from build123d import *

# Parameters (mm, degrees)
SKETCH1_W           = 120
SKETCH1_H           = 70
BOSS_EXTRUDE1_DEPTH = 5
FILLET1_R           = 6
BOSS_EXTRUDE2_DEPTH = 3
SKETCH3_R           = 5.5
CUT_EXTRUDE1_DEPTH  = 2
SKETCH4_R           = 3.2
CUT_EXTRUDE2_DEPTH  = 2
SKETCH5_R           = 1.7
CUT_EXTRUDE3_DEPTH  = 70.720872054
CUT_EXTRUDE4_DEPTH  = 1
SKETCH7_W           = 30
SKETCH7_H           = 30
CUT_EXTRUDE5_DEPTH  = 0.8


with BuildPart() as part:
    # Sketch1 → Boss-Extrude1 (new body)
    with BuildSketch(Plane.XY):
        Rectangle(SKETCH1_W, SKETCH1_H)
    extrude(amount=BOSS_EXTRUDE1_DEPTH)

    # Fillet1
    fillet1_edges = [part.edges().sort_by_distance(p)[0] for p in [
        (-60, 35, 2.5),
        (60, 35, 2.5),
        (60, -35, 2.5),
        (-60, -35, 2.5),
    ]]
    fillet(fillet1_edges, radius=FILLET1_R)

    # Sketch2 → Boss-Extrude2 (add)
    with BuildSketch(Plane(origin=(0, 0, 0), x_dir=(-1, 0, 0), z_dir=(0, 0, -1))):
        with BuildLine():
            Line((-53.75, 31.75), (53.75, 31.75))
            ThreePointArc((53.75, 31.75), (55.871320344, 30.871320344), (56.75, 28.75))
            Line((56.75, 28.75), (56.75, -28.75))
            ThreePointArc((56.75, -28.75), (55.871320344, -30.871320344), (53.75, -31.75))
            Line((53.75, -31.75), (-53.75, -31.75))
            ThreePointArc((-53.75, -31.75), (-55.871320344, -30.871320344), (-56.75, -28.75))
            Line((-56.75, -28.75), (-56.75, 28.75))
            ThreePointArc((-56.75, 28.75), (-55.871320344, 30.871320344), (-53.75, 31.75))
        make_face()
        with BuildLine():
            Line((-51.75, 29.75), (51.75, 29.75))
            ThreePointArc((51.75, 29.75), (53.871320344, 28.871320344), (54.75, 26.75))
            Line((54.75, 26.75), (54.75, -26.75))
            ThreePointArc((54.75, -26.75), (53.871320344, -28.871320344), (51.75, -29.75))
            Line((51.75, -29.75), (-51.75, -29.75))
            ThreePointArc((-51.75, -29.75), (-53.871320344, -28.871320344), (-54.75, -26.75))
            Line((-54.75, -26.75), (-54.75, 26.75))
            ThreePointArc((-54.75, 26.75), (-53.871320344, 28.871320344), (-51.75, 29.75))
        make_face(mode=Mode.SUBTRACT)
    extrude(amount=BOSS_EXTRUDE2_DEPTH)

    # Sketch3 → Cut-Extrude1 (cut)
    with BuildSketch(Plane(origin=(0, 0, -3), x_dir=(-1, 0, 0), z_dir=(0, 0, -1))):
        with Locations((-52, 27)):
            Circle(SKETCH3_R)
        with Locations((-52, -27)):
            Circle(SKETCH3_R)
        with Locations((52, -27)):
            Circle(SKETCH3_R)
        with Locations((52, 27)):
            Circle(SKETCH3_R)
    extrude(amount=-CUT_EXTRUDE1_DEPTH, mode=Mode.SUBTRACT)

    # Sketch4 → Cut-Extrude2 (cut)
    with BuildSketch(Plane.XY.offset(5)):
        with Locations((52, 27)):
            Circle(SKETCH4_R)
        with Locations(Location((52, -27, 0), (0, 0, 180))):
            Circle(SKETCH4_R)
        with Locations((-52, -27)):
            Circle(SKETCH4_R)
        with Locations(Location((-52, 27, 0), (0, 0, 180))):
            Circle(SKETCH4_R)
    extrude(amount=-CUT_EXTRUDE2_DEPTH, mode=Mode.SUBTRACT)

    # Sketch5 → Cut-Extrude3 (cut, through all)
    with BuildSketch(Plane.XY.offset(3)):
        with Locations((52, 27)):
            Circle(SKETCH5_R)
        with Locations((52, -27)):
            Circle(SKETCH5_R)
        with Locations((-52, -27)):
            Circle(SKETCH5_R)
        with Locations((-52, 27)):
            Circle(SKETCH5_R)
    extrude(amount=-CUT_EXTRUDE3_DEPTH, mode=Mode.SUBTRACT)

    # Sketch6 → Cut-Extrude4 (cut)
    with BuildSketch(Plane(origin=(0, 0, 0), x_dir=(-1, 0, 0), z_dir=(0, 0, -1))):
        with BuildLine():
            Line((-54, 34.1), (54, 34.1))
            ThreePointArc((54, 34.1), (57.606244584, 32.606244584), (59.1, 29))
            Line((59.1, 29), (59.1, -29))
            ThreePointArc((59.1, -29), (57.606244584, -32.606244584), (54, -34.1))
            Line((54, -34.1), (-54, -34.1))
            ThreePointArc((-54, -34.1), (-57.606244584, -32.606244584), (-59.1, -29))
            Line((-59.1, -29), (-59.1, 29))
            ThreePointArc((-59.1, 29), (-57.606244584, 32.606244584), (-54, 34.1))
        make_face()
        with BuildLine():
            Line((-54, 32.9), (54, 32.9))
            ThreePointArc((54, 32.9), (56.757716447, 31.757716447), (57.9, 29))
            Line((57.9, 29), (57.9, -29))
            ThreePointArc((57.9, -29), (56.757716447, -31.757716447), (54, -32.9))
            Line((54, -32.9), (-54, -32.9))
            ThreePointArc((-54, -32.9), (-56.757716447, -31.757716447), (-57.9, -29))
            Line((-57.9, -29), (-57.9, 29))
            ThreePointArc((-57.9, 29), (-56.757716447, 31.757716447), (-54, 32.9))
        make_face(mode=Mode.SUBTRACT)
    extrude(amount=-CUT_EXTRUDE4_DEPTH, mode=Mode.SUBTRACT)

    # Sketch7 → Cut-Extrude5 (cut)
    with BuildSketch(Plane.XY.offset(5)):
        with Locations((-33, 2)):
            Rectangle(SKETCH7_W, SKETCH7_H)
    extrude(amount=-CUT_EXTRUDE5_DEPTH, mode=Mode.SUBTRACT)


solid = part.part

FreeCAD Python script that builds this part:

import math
import FreeCAD as App
import Part
import Sketcher

V = App.Vector


def edges_at(feature, points):
    """Names of the edges that pass closest to the given points."""
    edges = feature.Shape.Edges
    near = lambda p: min(range(len(edges)), key=lambda i: edges[i].distToShape(Part.Vertex(*p))[0])
    return sorted({f"Edge{near(p) + 1}" for p in points})

doc = App.newDocument("Part")
body = doc.addObject("PartDesign::Body", "Body")

# Sketch on XY plane
sketch1 = body.newObject("Sketcher::SketchObject", "Sketch")
sketch1.AttachmentSupport = (doc.getObject("XY_Plane"), [""])
sketch1.MapMode = "FlatFace"
sketch1.addGeometry([
    Part.LineSegment(V(-60, 35, 0), V(-60, -35, 0)),
    Part.LineSegment(V(-60, -35, 0), V(60, -35, 0)),
    Part.LineSegment(V(60, -35, 0), V(60, 35, 0)),
    Part.LineSegment(V(60, 35, 0), V(-60, 35, 0)),
], False)
sketch1.addConstraint([
    Sketcher.Constraint("Coincident", 0, 2, 1, 1),
    Sketcher.Constraint("Coincident", 1, 2, 2, 1),
    Sketcher.Constraint("Coincident", 2, 2, 3, 1),
    Sketcher.Constraint("Coincident", 3, 2, 0, 1),
    Sketcher.Constraint("Vertical", 0),
    Sketcher.Constraint("Horizontal", 1),
    Sketcher.Constraint("Vertical", 2),
    Sketcher.Constraint("Horizontal", 3),
    Sketcher.Constraint("Symmetric", 0, 2, 2, 2, -1, 1),
    Sketcher.Constraint("DistanceX", 1, 1, 1, 2, 120.0),
    Sketcher.Constraint("DistanceY", 0, 2, 0, 1, 70.0),
])
pad1 = body.newObject("PartDesign::Pad", "Pad")
pad1.Profile = sketch1
pad1.Length = 5
doc.recompute()

fillet = body.newObject("PartDesign::Fillet", "Fillet")
fillet.Base = (pad1, edges_at(pad1, [
    (-60, 35, 2.5),
    (60, 35, 2.5),
    (60, -35, 2.5),
    (-60, -35, 2.5),
]))
fillet.Radius = 6

# Sketch on XY plane
sketch2 = body.newObject("Sketcher::SketchObject", "Sketch001")
sketch2.AttachmentSupport = (doc.getObject("XY_Plane"), [""])
sketch2.MapMode = "FlatFace"
sketch2.addGeometry([
    Part.LineSegment(V(-53.75, 31.75, 0), V(53.75, 31.75, 0)),  # 0
    Part.ArcOfCircle(Part.Circle(V(53.75, 28.75, 0), V(0, 0, 1), 3), math.radians(0), math.radians(90)),  # 1
    Part.LineSegment(V(56.75, 28.75, 0), V(56.75, -28.75, 0)),  # 2
    Part.ArcOfCircle(Part.Circle(V(53.75, -28.75, 0), V(0, 0, 1), 3), math.radians(-90), math.radians(0)),  # 3
    Part.LineSegment(V(53.75, -31.75, 0), V(-53.75, -31.75, 0)),  # 4
    Part.ArcOfCircle(Part.Circle(V(-53.75, -28.75, 0), V(0, 0, 1), 3), math.radians(180), math.radians(270)),  # 5
    Part.LineSegment(V(-56.75, -28.75, 0), V(-56.75, 28.75, 0)),  # 6
    Part.ArcOfCircle(Part.Circle(V(-53.75, 28.75, 0), V(0, 0, 1), 3), math.radians(90), math.radians(180)),  # 7
    Part.LineSegment(V(51.75, 29.75, 0), V(-51.75, 29.75, 0)),  # 8
    Part.ArcOfCircle(Part.Circle(V(-51.75, 26.75, 0), V(0, 0, 1), 3), math.radians(90), math.radians(180)),  # 9
    Part.LineSegment(V(-54.75, 26.75, 0), V(-54.75, -26.75, 0)),  # 10
    Part.ArcOfCircle(Part.Circle(V(-51.75, -26.75, 0), V(0, 0, 1), 3), math.radians(180), math.radians(270)),  # 11
    Part.LineSegment(V(-51.75, -29.75, 0), V(51.75, -29.75, 0)),  # 12
    Part.ArcOfCircle(Part.Circle(V(51.75, -26.75, 0), V(0, 0, 1), 3), math.radians(-90), math.radians(0)),  # 13
    Part.LineSegment(V(54.75, -26.75, 0), V(54.75, 26.75, 0)),  # 14
    Part.ArcOfCircle(Part.Circle(V(51.75, 26.75, 0), V(0, 0, 1), 3), math.radians(0), math.radians(90)),  # 15
], False)
sketch2.addConstraint([
    Sketcher.Constraint("Tangent", 0, 2, 1, 2),
    Sketcher.Constraint("Tangent", 1, 1, 2, 1),
    Sketcher.Constraint("Tangent", 2, 2, 3, 2),
    Sketcher.Constraint("Tangent", 3, 1, 4, 1),
    Sketcher.Constraint("Tangent", 4, 2, 5, 2),
    Sketcher.Constraint("Tangent", 5, 1, 6, 1),
    Sketcher.Constraint("Tangent", 6, 2, 7, 2),
    Sketcher.Constraint("Tangent", 7, 1, 0, 1),
    Sketcher.Constraint("Tangent", 8, 2, 9, 1),
    Sketcher.Constraint("Tangent", 9, 2, 10, 1),
    Sketcher.Constraint("Tangent", 10, 2, 11, 1),
    Sketcher.Constraint("Tangent", 11, 2, 12, 1),
    Sketcher.Constraint("Tangent", 12, 2, 13, 1),
    Sketcher.Constraint("Tangent", 13, 2, 14, 1),
    Sketcher.Constraint("Tangent", 14, 2, 15, 1),
    Sketcher.Constraint("Tangent", 15, 2, 8, 1),
    Sketcher.Constraint("Horizontal", 0),
    Sketcher.Constraint("Vertical", 2),
    Sketcher.Constraint("Horizontal", 4),
    Sketcher.Constraint("Vertical", 6),
    Sketcher.Constraint("Horizontal", 8),
    Sketcher.Constraint("Vertical", 10),
    Sketcher.Constraint("Horizontal", 12),
    Sketcher.Constraint("Vertical", 14),
    Sketcher.Constraint("Equal", 1, 3),
    Sketcher.Constraint("Equal", 3, 5),
    Sketcher.Constraint("Equal", 5, 7),
    Sketcher.Constraint("Equal", 7, 9),
    Sketcher.Constraint("Equal", 9, 11),
    Sketcher.Constraint("Equal", 11, 13),
    Sketcher.Constraint("Equal", 13, 15),
    Sketcher.Constraint("Symmetric", 1, 3, 5, 3, -1, 1),
    Sketcher.Constraint("Symmetric", 9, 3, 13, 3, -1, 1),
    Sketcher.Constraint("Radius", 1, 3.0),
    Sketcher.Constraint("DistanceX", 0, 1, 0, 2, 107.5),
    Sketcher.Constraint("DistanceX", 8, 2, 8, 1, 103.5),
    Sketcher.Constraint("DistanceY", 2, 2, 2, 1, 57.5),
    Sketcher.Constraint("DistanceY", 10, 2, 10, 1, 53.5),
])
pad2 = body.newObject("PartDesign::Pad", "Pad001")
pad2.Profile = sketch2
pad2.Length = 3
pad2.Reversed = True

# Sketch on XY plane
sketch3 = body.newObject("Sketcher::SketchObject", "Sketch002")
sketch3.AttachmentSupport = (doc.getObject("XY_Plane"), [""])
sketch3.MapMode = "FlatFace"
sketch3.AttachmentOffset = App.Placement(V(0, 0, -3), App.Rotation())
sketch3.addGeometry([
    Part.Circle(V(52, 27, 0), V(0, 0, 1), 5.5),
    Part.Circle(V(52, -27, 0), V(0, 0, 1), 5.5),
    Part.Circle(V(-52, -27, 0), V(0, 0, 1), 5.5),
    Part.Circle(V(-52, 27, 0), V(0, 0, 1), 5.5),
], False)
sketch3.addConstraint([
    Sketcher.Constraint("Equal", 0, 1),
    Sketcher.Constraint("Equal", 1, 2),
    Sketcher.Constraint("Equal", 2, 3),
    Sketcher.Constraint("Symmetric", 0, 3, 2, 3, -1, 1),
    Sketcher.Constraint("Symmetric", 1, 3, 3, 3, -1, 1),
    Sketcher.Constraint("Symmetric", 1, 3, 2, 3, -2),
    Sketcher.Constraint("Diameter", 0, 11.0),
    Sketcher.Constraint("DistanceX", -1, 1, 0, 3, 52.0),
    Sketcher.Constraint("DistanceY", -1, 1, 0, 3, 27.0),
])
pocket1 = body.newObject("PartDesign::Pocket", "Pocket")
pocket1.Profile = sketch3
pocket1.Length = 2
pocket1.Reversed = True

# Sketch on XY plane
sketch4 = body.newObject("Sketcher::SketchObject", "Sketch003")
sketch4.AttachmentSupport = (doc.getObject("XY_Plane"), [""])
sketch4.MapMode = "FlatFace"
sketch4.AttachmentOffset = App.Placement(V(0, 0, 5), App.Rotation())
sketch4.addGeometry([
    Part.Circle(V(52, 27, 0), V(0, 0, 1), 3.2),
    Part.Circle(V(52, -27, 0), V(0, 0, 1), 3.2),
    Part.Circle(V(-52, -27, 0), V(0, 0, 1), 3.2),
    Part.Circle(V(-52, 27, 0), V(0, 0, 1), 3.2),
], False)
sketch4.addConstraint([
    Sketcher.Constraint("Equal", 0, 1),
    Sketcher.Constraint("Equal", 1, 2),
    Sketcher.Constraint("Equal", 2, 3),
    Sketcher.Constraint("Symmetric", 0, 3, 2, 3, -1, 1),
    Sketcher.Constraint("Symmetric", 1, 3, 3, 3, -1, 1),
    Sketcher.Constraint("Symmetric", 1, 3, 2, 3, -2),
    Sketcher.Constraint("Diameter", 0, 6.4),
    Sketcher.Constraint("DistanceX", -1, 1, 0, 3, 52.0),
    Sketcher.Constraint("DistanceY", -1, 1, 0, 3, 27.0),
])
pocket2 = body.newObject("PartDesign::Pocket", "Pocket001")
pocket2.Profile = sketch4
pocket2.Length = 2

# Sketch on XY plane
sketch5 = body.newObject("Sketcher::SketchObject", "Sketch004")
sketch5.AttachmentSupport = (doc.getObject("XY_Plane"), [""])
sketch5.MapMode = "FlatFace"
sketch5.AttachmentOffset = App.Placement(V(0, 0, 3), App.Rotation())
sketch5.addGeometry([
    Part.Circle(V(52, 27, 0), V(0, 0, 1), 1.7),
    Part.Circle(V(52, -27, 0), V(0, 0, 1), 1.7),
    Part.Circle(V(-52, -27, 0), V(0, 0, 1), 1.7),
    Part.Circle(V(-52, 27, 0), V(0, 0, 1), 1.7),
], False)
sketch5.addConstraint([
    Sketcher.Constraint("Equal", 0, 1),
    Sketcher.Constraint("Equal", 1, 2),
    Sketcher.Constraint("Equal", 2, 3),
    Sketcher.Constraint("Symmetric", 0, 3, 2, 3, -1, 1),
    Sketcher.Constraint("Symmetric", 1, 3, 3, 3, -1, 1),
    Sketcher.Constraint("Symmetric", 1, 3, 2, 3, -2),
    Sketcher.Constraint("Diameter", 0, 3.4),
    Sketcher.Constraint("DistanceX", -1, 1, 0, 3, 52.0),
    Sketcher.Constraint("DistanceY", -1, 1, 0, 3, 27.0),
])
pocket3 = body.newObject("PartDesign::Pocket", "Pocket002")
pocket3.Profile = sketch5
pocket3.Type = "ThroughAll"

# Sketch on XY plane
sketch6 = body.newObject("Sketcher::SketchObject", "Sketch005")
sketch6.AttachmentSupport = (doc.getObject("XY_Plane"), [""])
sketch6.MapMode = "FlatFace"
sketch6.addGeometry([
    Part.LineSegment(V(-54, 34.1, 0), V(54, 34.1, 0)),  # 0
    Part.ArcOfCircle(Part.Circle(V(54, 29, 0), V(0, 0, 1), 5.1), math.radians(0), math.radians(90)),  # 1
    Part.LineSegment(V(59.1, 29, 0), V(59.1, -29, 0)),  # 2
    Part.ArcOfCircle(Part.Circle(V(54, -29, 0), V(0, 0, 1), 5.1), math.radians(-90), math.radians(0)),  # 3
    Part.LineSegment(V(54, -34.1, 0), V(-54, -34.1, 0)),  # 4
    Part.ArcOfCircle(Part.Circle(V(-54, -29, 0), V(0, 0, 1), 5.1), math.radians(180), math.radians(270)),  # 5
    Part.LineSegment(V(-59.1, -29, 0), V(-59.1, 29, 0)),  # 6
    Part.ArcOfCircle(Part.Circle(V(-54, 29, 0), V(0, 0, 1), 5.1), math.radians(90), math.radians(180)),  # 7
    Part.LineSegment(V(54, 32.9, 0), V(-54, 32.9, 0)),  # 8
    Part.ArcOfCircle(Part.Circle(V(-54, 29, 0), V(0, 0, 1), 3.9), math.radians(90), math.radians(180)),  # 9
    Part.LineSegment(V(-57.9, 29, 0), V(-57.9, -29, 0)),  # 10
    Part.ArcOfCircle(Part.Circle(V(-54, -29, 0), V(0, 0, 1), 3.9), math.radians(180), math.radians(270)),  # 11
    Part.LineSegment(V(-54, -32.9, 0), V(54, -32.9, 0)),  # 12
    Part.ArcOfCircle(Part.Circle(V(54, -29, 0), V(0, 0, 1), 3.9), math.radians(-90), math.radians(0)),  # 13
    Part.LineSegment(V(57.9, -29, 0), V(57.9, 29, 0)),  # 14
    Part.ArcOfCircle(Part.Circle(V(54, 29, 0), V(0, 0, 1), 3.9), math.radians(0), math.radians(90)),  # 15
], False)
sketch6.addConstraint([
    Sketcher.Constraint("Tangent", 0, 2, 1, 2),
    Sketcher.Constraint("Tangent", 1, 1, 2, 1),
    Sketcher.Constraint("Tangent", 2, 2, 3, 2),
    Sketcher.Constraint("Tangent", 3, 1, 4, 1),
    Sketcher.Constraint("Tangent", 4, 2, 5, 2),
    Sketcher.Constraint("Tangent", 5, 1, 6, 1),
    Sketcher.Constraint("Tangent", 6, 2, 7, 2),
    Sketcher.Constraint("Tangent", 7, 1, 0, 1),
    Sketcher.Constraint("Tangent", 8, 2, 9, 1),
    Sketcher.Constraint("Tangent", 9, 2, 10, 1),
    Sketcher.Constraint("Tangent", 10, 2, 11, 1),
    Sketcher.Constraint("Tangent", 11, 2, 12, 1),
    Sketcher.Constraint("Tangent", 12, 2, 13, 1),
    Sketcher.Constraint("Tangent", 13, 2, 14, 1),
    Sketcher.Constraint("Tangent", 14, 2, 15, 1),
    Sketcher.Constraint("Tangent", 15, 2, 8, 1),
    Sketcher.Constraint("Horizontal", 0),
    Sketcher.Constraint("Vertical", 2),
    Sketcher.Constraint("Horizontal", 4),
    Sketcher.Constraint("Vertical", 6),
    Sketcher.Constraint("Horizontal", 8),
    Sketcher.Constraint("Vertical", 10),
    Sketcher.Constraint("Horizontal", 12),
    Sketcher.Constraint("Vertical", 14),
    Sketcher.Constraint("Coincident", 9, 3, 7, 3),
    Sketcher.Constraint("Coincident", 11, 3, 5, 3),
    Sketcher.Constraint("Coincident", 13, 3, 3, 3),
    Sketcher.Constraint("Equal", 1, 3),
    Sketcher.Constraint("Equal", 3, 5),
    Sketcher.Constraint("Equal", 5, 7),
    Sketcher.Constraint("Equal", 13, 15),
    Sketcher.Constraint("Symmetric", 1, 3, 5, 3, -1, 1),
    Sketcher.Constraint("Radius", 1, 5.1),
    Sketcher.Constraint("Radius", 9, 3.9),
    Sketcher.Constraint("DistanceX", 0, 1, 0, 2, 108.0),
    Sketcher.Constraint("DistanceY", 2, 2, 2, 1, 58.0),
])
pocket4 = body.newObject("PartDesign::Pocket", "Pocket003")
pocket4.Profile = sketch6
pocket4.Length = 1
pocket4.Reversed = True

# Sketch on XY plane
sketch7 = body.newObject("Sketcher::SketchObject", "Sketch006")
sketch7.AttachmentSupport = (doc.getObject("XY_Plane"), [""])
sketch7.MapMode = "FlatFace"
sketch7.AttachmentOffset = App.Placement(V(0, 0, 5), App.Rotation())
sketch7.addGeometry([
    Part.LineSegment(V(-48, 17, 0), V(-48, -13, 0)),
    Part.LineSegment(V(-48, -13, 0), V(-18, -13, 0)),
    Part.LineSegment(V(-18, -13, 0), V(-18, 17, 0)),
    Part.LineSegment(V(-18, 17, 0), V(-48, 17, 0)),
], False)
sketch7.addConstraint([
    Sketcher.Constraint("Coincident", 0, 2, 1, 1),
    Sketcher.Constraint("Coincident", 1, 2, 2, 1),
    Sketcher.Constraint("Coincident", 2, 2, 3, 1),
    Sketcher.Constraint("Coincident", 3, 2, 0, 1),
    Sketcher.Constraint("Vertical", 0),
    Sketcher.Constraint("Horizontal", 1),
    Sketcher.Constraint("Vertical", 2),
    Sketcher.Constraint("Horizontal", 3),
    Sketcher.Constraint("Equal", 3, 0),
    Sketcher.Constraint("DistanceX", 1, 1, 1, 2, 30.0),
    Sketcher.Constraint("DistanceX", 0, 2, -1, 1, 48.0),
    Sketcher.Constraint("DistanceY", 0, 2, -1, 1, 13.0),
])
pocket5 = body.newObject("PartDesign::Pocket", "Pocket004")
pocket5.Profile = sketch7
pocket5.Length = 0.8

doc.recompute()
